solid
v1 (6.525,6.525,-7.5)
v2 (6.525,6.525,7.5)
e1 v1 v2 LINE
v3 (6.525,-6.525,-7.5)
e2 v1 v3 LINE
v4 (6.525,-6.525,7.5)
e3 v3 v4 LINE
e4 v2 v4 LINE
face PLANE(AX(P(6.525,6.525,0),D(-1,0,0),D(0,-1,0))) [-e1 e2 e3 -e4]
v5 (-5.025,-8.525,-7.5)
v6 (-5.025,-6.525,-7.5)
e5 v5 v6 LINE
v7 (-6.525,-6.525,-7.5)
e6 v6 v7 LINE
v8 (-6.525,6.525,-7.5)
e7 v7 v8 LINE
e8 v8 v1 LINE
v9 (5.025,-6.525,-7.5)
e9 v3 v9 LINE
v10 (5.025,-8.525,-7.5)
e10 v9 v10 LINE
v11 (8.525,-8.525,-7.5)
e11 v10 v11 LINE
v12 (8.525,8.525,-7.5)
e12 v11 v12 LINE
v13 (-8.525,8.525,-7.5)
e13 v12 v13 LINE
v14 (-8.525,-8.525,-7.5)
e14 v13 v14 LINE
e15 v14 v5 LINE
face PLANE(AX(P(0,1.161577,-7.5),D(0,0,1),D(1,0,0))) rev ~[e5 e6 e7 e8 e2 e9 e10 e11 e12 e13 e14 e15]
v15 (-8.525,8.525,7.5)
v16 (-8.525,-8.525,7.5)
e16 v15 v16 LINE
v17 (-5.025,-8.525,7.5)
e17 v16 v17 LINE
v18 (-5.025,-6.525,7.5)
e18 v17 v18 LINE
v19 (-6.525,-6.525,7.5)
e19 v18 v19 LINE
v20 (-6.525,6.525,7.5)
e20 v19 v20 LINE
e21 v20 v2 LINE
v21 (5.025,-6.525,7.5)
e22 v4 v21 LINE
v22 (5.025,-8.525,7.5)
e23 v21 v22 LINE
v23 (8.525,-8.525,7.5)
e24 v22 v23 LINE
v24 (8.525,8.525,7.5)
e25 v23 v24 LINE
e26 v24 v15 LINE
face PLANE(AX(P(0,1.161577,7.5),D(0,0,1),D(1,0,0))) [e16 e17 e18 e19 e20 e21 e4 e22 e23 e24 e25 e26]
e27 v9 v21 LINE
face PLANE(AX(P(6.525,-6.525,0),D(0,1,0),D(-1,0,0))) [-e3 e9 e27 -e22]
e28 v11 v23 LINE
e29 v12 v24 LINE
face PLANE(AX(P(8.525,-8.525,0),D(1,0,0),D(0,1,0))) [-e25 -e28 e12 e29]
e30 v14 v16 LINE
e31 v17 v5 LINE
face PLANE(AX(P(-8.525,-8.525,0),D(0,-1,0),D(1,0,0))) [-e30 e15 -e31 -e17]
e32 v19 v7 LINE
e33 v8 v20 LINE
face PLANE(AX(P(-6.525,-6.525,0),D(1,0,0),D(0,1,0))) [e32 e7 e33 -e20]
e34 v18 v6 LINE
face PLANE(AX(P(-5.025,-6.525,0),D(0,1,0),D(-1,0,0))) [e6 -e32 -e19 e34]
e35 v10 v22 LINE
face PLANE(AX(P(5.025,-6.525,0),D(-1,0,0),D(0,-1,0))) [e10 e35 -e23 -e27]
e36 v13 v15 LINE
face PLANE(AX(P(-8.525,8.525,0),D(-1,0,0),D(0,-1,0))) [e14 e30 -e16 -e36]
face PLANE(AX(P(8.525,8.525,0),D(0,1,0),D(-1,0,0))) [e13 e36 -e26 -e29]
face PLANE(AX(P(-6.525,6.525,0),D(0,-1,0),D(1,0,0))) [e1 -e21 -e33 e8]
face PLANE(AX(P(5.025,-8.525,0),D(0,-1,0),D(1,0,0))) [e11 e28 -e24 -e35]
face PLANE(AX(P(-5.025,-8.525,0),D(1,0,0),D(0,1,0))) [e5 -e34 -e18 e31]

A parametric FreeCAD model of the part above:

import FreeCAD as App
import Part
import Sketcher
Q = App.Units.Quantity

doc = App.newDocument("Part")
body = doc.addObject("PartDesign::Body", "Body")

sketch1 = doc.addObject("Sketcher::SketchObject", "Sketch")
body.addObject(sketch1)
sketch1.AttachmentSupport = (doc.XY_Plane, [""])
sketch1.MapMode = "FlatFace"
sketch1.addGeometry([
    Part.LineSegment(App.Vector(-6.525, -6.525, 0), App.Vector(-6.525, 6.525, 0)),
    Part.LineSegment(App.Vector(-6.525, 6.525, 0), App.Vector(6.525, 6.525, 0)),
    Part.LineSegment(App.Vector(6.525, 6.525, 0), App.Vector(6.525, -6.525, 0)),
    Part.LineSegment(App.Vector(6.525, -6.525, 0), App.Vector(5.025, -6.525, 0)),
    Part.LineSegment(App.Vector(5.025, -6.525, 0), App.Vector(5.025, -8.525, 0)),
    Part.LineSegment(App.Vector(5.025, -8.525, 0), App.Vector(8.525, -8.525, 0)),
    Part.LineSegment(App.Vector(8.525, -8.525, 0), App.Vector(8.525, 8.525, 0)),
    Part.LineSegment(App.Vector(8.525, 8.525, 0), App.Vector(-8.525, 8.525, 0)),
    Part.LineSegment(App.Vector(-8.525, 8.525, 0), App.Vector(-8.525, -8.525, 0)),
    Part.LineSegment(App.Vector(-8.525, -8.525, 0), App.Vector(-5.025, -8.525, 0)),
    Part.LineSegment(App.Vector(-5.025, -8.525, 0), App.Vector(-5.025, -6.525, 0)),
    Part.LineSegment(App.Vector(-5.025, -6.525, 0), App.Vector(-6.525, -6.525, 0)),
], False)
sketch1.addConstraint([
    Sketcher.Constraint("Coincident", 0, 2, 1, 1),
    Sketcher.Constraint("Coincident", 1, 2, 2, 1),
    Sketcher.Constraint("Coincident", 2, 2, 3, 1),
    Sketcher.Constraint("Coincident", 3, 2, 4, 1),
    Sketcher.Constraint("Coincident", 4, 2, 5, 1),
    Sketcher.Constraint("Coincident", 5, 2, 6, 1),
    Sketcher.Constraint("Coincident", 6, 2, 7, 1),
    Sketcher.Constraint("Coincident", 7, 2, 8, 1),
    Sketcher.Constraint("Coincident", 8, 2, 9, 1),
    Sketcher.Constraint("Coincident", 9, 2, 10, 1),
    Sketcher.Constraint("Coincident", 10, 2, 11, 1),
    Sketcher.Constraint("Coincident", 11, 2, 0, 1),
    Sketcher.Constraint("Vertical", 0),
    Sketcher.Constraint("Horizontal", 1),
    Sketcher.Constraint("Vertical", 2),
    Sketcher.Constraint("Horizontal", 3),
    Sketcher.Constraint("Vertical", 4),
    Sketcher.Constraint("Horizontal", 5),
    Sketcher.Constraint("Vertical", 6),
    Sketcher.Constraint("Horizontal", 7),
    Sketcher.Constraint("Vertical", 8),
    Sketcher.Constraint("Horizontal", 9),
    Sketcher.Constraint("Vertical", 10),
    Sketcher.Constraint("Horizontal", 11),
    Sketcher.Constraint("Symmetric", 0, 2, 2, 2, -1, 1),
    Sketcher.Constraint("Symmetric", 5, 2, 7, 2, -1, 1),
    Sketcher.Constraint("Symmetric", 4, 2, 9, 2, -2),
    Sketcher.Constraint("Horizontal", 3, 2, 10, 2),
    Sketcher.Constraint("Equal", 1, 0),
    Sketcher.Constraint("Equal", 7, 6),
    Sketcher.Constraint("DistanceY", 4, 2, 4, 1, Q("2 mm")),
    Sketcher.Constraint("DistanceX", 3, 2, 3, 1, Q("1.5 mm")),
    Sketcher.Constraint("DistanceX", 1, 1, 1, 2, Q("13.05 mm")),
])
pad1 = doc.addObject("PartDesign::Pad", "Pad")
body.addObject(pad1)
pad1.Profile = sketch1
pad1.Length = 15
pad1.Midplane = True

doc.recompute()
